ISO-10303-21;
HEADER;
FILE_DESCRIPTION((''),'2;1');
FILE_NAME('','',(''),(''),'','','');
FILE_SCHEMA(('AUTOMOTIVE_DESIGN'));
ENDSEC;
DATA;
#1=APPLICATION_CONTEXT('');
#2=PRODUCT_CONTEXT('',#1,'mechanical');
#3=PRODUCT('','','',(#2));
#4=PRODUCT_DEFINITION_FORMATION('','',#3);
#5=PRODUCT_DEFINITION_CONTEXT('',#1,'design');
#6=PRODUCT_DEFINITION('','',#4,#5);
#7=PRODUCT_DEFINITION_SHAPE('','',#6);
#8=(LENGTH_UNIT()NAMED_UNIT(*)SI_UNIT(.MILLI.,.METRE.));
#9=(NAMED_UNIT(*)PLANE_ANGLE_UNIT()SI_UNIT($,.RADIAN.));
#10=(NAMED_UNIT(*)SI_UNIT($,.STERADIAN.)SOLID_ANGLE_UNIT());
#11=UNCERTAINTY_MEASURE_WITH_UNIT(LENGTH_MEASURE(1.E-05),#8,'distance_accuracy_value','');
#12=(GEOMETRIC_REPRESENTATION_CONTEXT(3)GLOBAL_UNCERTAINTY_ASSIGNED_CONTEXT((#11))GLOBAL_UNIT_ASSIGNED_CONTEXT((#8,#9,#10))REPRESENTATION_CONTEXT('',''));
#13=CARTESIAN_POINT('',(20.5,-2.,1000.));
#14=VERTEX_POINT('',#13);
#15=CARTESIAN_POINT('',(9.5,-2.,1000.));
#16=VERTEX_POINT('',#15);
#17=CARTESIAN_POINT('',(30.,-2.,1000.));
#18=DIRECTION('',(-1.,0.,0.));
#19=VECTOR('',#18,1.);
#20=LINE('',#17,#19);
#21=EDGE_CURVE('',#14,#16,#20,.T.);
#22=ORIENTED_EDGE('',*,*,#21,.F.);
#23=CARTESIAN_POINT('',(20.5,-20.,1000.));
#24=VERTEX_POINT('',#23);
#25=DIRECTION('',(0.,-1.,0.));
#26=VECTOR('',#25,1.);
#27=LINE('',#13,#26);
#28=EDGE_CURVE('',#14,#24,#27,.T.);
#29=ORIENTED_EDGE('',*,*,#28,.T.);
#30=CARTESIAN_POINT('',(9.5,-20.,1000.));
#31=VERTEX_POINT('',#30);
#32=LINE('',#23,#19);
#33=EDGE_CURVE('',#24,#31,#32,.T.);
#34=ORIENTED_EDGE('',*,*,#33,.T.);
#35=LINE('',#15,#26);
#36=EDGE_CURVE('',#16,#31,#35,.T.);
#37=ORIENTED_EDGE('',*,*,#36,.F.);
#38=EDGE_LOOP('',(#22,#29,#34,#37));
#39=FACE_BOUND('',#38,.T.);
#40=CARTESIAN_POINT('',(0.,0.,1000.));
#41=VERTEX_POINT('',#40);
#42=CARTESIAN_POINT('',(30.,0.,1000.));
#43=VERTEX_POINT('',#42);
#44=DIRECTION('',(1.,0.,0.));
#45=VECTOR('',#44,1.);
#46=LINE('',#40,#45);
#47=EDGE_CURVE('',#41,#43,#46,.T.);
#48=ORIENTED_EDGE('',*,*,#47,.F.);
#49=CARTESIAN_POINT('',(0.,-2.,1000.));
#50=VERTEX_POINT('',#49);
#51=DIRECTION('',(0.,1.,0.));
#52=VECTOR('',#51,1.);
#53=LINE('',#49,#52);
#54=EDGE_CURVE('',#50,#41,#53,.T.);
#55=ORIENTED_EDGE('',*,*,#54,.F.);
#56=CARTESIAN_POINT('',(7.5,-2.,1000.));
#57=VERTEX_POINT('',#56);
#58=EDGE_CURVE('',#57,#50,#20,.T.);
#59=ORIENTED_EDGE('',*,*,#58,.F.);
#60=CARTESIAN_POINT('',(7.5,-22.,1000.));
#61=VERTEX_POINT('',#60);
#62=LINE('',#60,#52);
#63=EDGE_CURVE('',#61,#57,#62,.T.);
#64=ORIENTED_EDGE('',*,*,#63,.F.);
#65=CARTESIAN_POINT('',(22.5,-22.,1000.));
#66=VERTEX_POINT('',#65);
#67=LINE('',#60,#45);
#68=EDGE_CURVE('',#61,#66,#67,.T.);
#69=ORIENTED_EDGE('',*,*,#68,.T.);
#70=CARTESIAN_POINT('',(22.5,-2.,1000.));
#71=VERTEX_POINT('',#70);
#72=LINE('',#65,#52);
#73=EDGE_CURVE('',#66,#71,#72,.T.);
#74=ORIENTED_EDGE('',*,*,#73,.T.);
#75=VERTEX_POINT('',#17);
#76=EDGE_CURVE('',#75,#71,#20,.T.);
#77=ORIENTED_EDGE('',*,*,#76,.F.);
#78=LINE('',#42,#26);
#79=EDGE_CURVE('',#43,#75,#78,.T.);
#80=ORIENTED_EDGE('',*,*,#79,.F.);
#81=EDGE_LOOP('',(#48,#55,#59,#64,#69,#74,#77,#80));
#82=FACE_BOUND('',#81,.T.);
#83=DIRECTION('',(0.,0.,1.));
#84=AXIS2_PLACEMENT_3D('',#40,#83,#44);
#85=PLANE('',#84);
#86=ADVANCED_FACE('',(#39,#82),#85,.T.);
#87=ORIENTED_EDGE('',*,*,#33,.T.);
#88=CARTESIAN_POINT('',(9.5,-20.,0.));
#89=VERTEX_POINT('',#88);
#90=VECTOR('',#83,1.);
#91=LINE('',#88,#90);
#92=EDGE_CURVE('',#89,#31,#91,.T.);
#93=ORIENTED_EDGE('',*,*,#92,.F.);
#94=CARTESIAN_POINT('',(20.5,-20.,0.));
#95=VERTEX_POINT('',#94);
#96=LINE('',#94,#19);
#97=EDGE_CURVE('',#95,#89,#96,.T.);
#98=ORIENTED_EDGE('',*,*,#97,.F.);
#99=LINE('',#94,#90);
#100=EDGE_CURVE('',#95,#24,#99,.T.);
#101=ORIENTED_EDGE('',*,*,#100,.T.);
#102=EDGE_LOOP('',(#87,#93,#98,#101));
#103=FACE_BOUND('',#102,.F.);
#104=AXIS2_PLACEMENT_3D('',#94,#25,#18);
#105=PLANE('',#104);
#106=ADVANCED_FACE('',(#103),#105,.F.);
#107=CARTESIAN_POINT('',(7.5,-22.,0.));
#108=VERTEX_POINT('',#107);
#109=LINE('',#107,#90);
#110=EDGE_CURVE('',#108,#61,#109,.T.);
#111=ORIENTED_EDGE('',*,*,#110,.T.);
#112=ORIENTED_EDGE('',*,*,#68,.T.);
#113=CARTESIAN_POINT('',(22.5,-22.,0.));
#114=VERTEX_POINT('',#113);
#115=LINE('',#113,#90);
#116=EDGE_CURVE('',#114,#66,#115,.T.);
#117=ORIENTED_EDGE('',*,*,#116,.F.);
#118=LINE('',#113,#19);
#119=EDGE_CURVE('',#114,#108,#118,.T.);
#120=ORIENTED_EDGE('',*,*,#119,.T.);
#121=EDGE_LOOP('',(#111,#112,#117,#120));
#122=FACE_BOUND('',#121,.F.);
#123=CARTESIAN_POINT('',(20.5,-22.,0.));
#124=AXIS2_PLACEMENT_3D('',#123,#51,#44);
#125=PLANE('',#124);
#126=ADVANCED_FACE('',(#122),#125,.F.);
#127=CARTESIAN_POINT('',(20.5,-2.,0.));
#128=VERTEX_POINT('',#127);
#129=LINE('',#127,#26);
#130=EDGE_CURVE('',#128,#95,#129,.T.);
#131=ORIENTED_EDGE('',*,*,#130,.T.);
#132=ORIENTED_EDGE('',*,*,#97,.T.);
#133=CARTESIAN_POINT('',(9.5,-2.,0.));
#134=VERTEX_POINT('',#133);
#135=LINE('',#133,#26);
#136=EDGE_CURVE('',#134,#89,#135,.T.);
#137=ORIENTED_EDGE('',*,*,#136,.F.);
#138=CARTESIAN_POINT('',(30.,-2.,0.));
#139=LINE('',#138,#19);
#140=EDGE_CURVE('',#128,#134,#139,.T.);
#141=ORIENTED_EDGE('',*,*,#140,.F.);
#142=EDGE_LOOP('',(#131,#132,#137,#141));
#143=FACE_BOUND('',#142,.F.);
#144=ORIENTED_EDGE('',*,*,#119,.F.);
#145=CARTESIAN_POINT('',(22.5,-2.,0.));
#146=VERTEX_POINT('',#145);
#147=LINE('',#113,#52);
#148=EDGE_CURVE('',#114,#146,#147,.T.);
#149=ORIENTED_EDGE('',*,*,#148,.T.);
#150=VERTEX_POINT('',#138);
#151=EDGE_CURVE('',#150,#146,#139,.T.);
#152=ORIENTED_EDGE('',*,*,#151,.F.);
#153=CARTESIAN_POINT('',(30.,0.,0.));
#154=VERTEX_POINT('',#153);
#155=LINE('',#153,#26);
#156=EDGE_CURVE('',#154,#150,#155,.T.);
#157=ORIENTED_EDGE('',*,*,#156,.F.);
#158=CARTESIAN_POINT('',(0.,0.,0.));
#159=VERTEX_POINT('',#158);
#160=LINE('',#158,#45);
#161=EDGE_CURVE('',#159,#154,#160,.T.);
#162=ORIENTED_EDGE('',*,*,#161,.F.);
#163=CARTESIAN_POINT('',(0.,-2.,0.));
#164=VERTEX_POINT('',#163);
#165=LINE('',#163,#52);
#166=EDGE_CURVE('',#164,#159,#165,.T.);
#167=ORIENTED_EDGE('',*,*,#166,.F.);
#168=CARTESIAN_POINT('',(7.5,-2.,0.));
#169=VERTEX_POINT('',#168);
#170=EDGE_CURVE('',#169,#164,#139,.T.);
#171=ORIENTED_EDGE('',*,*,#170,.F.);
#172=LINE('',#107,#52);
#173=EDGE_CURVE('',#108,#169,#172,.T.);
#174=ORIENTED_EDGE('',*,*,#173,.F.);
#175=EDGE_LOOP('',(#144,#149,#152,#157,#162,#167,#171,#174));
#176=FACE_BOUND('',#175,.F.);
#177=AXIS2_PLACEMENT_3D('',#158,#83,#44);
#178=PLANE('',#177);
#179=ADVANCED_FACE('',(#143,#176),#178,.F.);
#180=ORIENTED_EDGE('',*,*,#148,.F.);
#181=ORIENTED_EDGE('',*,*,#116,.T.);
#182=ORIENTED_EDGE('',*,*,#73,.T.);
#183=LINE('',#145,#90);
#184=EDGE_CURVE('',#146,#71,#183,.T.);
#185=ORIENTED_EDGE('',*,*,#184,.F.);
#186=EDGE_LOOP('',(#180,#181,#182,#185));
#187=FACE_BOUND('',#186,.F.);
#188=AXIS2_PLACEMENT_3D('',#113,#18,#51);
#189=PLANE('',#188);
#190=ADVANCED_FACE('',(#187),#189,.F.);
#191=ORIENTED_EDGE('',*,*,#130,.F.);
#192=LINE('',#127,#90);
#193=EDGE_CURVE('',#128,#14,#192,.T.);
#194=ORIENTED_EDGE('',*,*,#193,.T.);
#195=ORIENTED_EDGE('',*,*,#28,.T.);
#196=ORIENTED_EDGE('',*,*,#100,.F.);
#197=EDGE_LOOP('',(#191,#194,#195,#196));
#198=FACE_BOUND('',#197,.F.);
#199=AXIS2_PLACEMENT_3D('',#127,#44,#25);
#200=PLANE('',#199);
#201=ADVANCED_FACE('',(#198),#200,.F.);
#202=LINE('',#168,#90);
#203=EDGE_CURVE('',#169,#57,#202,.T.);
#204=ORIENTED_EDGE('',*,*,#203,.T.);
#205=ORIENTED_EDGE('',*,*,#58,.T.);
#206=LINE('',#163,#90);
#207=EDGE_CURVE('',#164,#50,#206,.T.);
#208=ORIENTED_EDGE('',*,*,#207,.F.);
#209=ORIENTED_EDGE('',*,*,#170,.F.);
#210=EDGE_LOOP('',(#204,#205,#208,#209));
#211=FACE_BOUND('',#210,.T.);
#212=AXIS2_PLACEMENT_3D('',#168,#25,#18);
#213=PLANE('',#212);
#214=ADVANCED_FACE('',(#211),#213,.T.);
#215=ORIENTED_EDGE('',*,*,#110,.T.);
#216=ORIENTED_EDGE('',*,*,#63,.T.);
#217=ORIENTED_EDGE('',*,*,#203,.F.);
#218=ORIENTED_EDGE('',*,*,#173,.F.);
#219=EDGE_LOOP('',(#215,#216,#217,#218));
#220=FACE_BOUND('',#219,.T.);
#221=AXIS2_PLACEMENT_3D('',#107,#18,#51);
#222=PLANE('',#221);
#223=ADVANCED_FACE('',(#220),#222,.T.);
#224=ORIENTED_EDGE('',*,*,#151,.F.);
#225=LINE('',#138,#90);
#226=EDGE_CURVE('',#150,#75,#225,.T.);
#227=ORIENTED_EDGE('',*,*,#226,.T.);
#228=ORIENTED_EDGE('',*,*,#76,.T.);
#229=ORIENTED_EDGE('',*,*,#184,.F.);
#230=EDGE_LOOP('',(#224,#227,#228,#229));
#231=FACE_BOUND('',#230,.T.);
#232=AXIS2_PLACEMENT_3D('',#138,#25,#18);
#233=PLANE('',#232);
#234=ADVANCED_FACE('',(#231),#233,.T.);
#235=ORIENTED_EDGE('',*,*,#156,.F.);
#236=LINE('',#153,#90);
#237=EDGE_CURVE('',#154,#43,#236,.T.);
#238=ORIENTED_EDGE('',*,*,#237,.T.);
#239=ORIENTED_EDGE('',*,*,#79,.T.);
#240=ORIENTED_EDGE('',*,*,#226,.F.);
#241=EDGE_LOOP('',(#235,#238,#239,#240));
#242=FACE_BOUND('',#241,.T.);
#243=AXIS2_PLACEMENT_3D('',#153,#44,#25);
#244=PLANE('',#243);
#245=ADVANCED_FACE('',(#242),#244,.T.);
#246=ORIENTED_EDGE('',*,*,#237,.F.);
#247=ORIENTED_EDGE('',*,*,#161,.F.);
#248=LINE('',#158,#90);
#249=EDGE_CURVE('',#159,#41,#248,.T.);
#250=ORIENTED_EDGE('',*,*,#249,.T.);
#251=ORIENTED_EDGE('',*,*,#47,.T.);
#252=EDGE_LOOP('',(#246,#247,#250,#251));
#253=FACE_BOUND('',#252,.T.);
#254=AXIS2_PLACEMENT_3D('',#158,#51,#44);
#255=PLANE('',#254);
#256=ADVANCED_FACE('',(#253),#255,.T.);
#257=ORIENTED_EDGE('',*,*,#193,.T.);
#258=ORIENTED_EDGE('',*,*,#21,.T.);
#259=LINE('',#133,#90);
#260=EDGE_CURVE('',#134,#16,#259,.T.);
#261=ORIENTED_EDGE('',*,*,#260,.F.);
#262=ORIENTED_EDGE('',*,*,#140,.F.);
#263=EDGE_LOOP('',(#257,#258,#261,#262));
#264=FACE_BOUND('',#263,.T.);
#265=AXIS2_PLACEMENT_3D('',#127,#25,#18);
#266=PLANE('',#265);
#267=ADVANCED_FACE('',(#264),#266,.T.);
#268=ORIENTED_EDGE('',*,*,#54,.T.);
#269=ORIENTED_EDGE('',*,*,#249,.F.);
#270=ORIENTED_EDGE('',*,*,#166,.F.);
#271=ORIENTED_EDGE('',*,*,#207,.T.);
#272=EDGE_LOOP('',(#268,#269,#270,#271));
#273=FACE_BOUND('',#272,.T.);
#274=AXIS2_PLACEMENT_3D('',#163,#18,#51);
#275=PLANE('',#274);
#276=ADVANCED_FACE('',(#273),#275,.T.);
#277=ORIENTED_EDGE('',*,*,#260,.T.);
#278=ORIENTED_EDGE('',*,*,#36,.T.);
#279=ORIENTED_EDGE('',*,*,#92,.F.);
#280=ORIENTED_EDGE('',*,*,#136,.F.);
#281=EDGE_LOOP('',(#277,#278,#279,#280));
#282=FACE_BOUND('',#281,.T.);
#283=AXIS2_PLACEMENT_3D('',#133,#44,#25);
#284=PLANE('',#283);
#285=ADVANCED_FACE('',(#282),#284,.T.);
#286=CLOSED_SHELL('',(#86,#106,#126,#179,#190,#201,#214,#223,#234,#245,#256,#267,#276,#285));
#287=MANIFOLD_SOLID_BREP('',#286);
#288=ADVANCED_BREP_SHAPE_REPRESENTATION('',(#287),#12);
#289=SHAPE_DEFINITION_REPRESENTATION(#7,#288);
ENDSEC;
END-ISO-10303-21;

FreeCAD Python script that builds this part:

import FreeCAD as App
import Part
import Sketcher
Q = App.Units.Quantity


def add_polygon(sketch, points):
    """Adds a closed chain of lines whose ends are joined by coincident constraints."""
    first, n = sketch.GeometryCount, len(points)
    for a, b in zip(points, points[1:] + points[:1]):
        sketch.addGeometry(Part.LineSegment(App.Vector(*a, 0), App.Vector(*b, 0)), False)
    for i in range(n):
        sketch.addConstraint(Sketcher.Constraint("Coincident", first + i, 2, first + (i + 1) % n, 1))

doc = App.newDocument("Part")
params = doc.addObject("Spreadsheet::Sheet", "Params")
for row, (alias, value) in enumerate([
    ("sketch1_width", "30 mm"),
    ("sketch1_width2", "11 mm"),
    ("sketch1_height", "2 mm"),
    ("sketch1_height2", "20 mm"),
    ("sketch1_width3", "7.5 mm"),
    ("pad1_length", "1000 mm"),
], start=1):
    params.set(f"A{row}", alias)
    params.set(f"B{row}", "=" + value)
    params.setAlias(f"B{row}", alias)

body = doc.addObject("PartDesign::Body", "Body")

sketch1 = body.newObject("Sketcher::SketchObject", "Sketch")
sketch1.AttachmentSupport = (doc.getObject("XY_Plane"), [""])
sketch1.MapMode = "FlatFace"
add_polygon(sketch1, [(30, 0), (0, 0), (0, -2), (7.5, -2), (7.5, -22), (22.5, -22), (22.5, -2), (30, -2)])
add_polygon(sketch1, [(9.5, -2), (20.5, -2), (20.5, -20), (9.5, -20)])
sketch1.addConstraint([
    Sketcher.Constraint("Horizontal", 0),
    Sketcher.Constraint("Vertical", 1),
    Sketcher.Constraint("Horizontal", 2),
    Sketcher.Constraint("Vertical", 3),
    Sketcher.Constraint("Horizontal", 4),
    Sketcher.Constraint("Vertical", 5),
    Sketcher.Constraint("Horizontal", 6),
    Sketcher.Constraint("Vertical", 7),
    Sketcher.Constraint("Horizontal", 8),
    Sketcher.Constraint("Vertical", 9),
    Sketcher.Constraint("Horizontal", 10),
    Sketcher.Constraint("Vertical", 11),
    Sketcher.Constraint("Coincident", 0, 2, -1, 1),
    Sketcher.Constraint("Horizontal", 2, 2, 5, 2),
    Sketcher.Constraint("Horizontal", 6, 2, 8, 2),
    Sketcher.Constraint("Equal", 2, 6),
    Sketcher.Constraint("DistanceX", 0, 2, 0, 1, Q("30 mm")),
    Sketcher.Constraint("DistanceX", 8, 1, 8, 2, Q("11 mm")),
    Sketcher.Constraint("DistanceY", 1, 2, 1, 1, Q("2 mm")),
    Sketcher.Constraint("DistanceY", 3, 2, 3, 1, Q("20 mm")),
    Sketcher.Constraint("DistanceX", 2, 1, 2, 2, Q("7.5 mm")),
    Sketcher.Constraint("DistanceY", 9, 2, -1, 1, Q("20 mm")),
    Sketcher.Constraint("DistanceX", 8, 2, 5, 2, Q("2 mm")),
])
sketch1.setExpression("Constraints[28]", "Params.sketch1_width")
sketch1.setExpression("Constraints[29]", "Params.sketch1_width2")
sketch1.setExpression("Constraints[30]", "Params.sketch1_height")
sketch1.setExpression("Constraints[31]", "Params.sketch1_height2")
sketch1.setExpression("Constraints[32]", "Params.sketch1_width3")
pad1 = body.newObject("PartDesign::Pad", "Pad")
pad1.Profile = sketch1
pad1.setExpression("Length", "Params.pad1_length")

doc.recompute()
